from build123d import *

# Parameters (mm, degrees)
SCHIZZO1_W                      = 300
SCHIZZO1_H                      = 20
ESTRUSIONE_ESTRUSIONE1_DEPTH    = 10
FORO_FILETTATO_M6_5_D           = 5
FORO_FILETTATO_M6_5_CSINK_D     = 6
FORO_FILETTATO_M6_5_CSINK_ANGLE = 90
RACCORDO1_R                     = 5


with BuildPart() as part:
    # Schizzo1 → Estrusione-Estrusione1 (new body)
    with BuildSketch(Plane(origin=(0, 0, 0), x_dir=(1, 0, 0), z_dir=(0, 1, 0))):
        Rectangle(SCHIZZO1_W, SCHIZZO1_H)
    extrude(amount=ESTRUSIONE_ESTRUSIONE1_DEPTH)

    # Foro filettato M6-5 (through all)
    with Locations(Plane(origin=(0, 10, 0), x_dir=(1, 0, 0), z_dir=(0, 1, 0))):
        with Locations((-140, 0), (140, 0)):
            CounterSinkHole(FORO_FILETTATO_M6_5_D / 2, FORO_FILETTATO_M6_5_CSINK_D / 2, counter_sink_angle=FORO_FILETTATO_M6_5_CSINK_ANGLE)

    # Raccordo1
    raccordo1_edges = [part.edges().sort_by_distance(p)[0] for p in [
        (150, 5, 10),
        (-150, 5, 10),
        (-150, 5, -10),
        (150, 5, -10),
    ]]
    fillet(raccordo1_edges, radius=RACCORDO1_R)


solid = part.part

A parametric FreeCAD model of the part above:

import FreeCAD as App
import Part
import Sketcher

V = App.Vector
Q = App.Units.Quantity


def edges_at(feature, points):
    """Names of the edges that pass closest to the given points."""
    edges = feature.Shape.Edges
    near = lambda p: min(range(len(edges)), key=lambda i: edges[i].distToShape(Part.Vertex(*p))[0])
    return sorted({f"Edge{near(p) + 1}" for p in points})


def add_polygon(sketch, points):
    """Adds a closed chain of lines whose ends are joined by coincident constraints."""
    first, n = sketch.GeometryCount, len(points)
    for a, b in zip(points, points[1:] + points[:1]):
        sketch.addGeometry(Part.LineSegment(App.Vector(*a, 0), App.Vector(*b, 0)), False)
    for i in range(n):
        sketch.addConstraint(Sketcher.Constraint("Coincident", first + i, 2, first + (i + 1) % n, 1))

doc = App.newDocument("Part")
body = doc.addObject("PartDesign::Body", "Body")

sketch1 = doc.addObject("Sketcher::SketchObject", "Sketch")
body.addObject(sketch1)
sketch1.AttachmentSupport = (doc.XZ_Plane, [""])
sketch1.MapMode = "FlatFace"
add_polygon(sketch1, [(-150, -10), (-150, 10), (150, 10), (150, -10)])
sketch1.addConstraint(Sketcher.Constraint("Vertical", 0))
sketch1.addConstraint(Sketcher.Constraint("Horizontal", 1))
sketch1.addConstraint(Sketcher.Constraint("Vertical", 2))
sketch1.addConstraint(Sketcher.Constraint("Horizontal", 3))
sketch1.addConstraint(Sketcher.Constraint("Symmetric", 0, 2, 2, 2, -1, 1))
sketch1.addConstraint(Sketcher.Constraint("DistanceX", 1, 1, 1, 2, Q("300 mm")))
sketch1.addConstraint(Sketcher.Constraint("DistanceY", 0, 1, 0, 2, Q("20 mm")))
pad1 = doc.addObject("PartDesign::Pad", "Pad")
body.addObject(pad1)
pad1.Profile = sketch1
pad1.Length = 10
pad1.Reversed = True

sketch2 = doc.addObject("Sketcher::SketchObject", "Sketch001")
body.addObject(sketch2)
sketch2.AttachmentSupport = (doc.XZ_Plane, [""])
sketch2.MapMode = "FlatFace"
sketch2.AttachmentOffset = App.Placement(V(0, 0, -10), App.Rotation())
sketch2.addGeometry(Part.Circle(V(-140, 0, 0), V(0, 0, 1), 2.5), False)
sketch2.addGeometry(Part.Circle(V(140, 0, 0), V(0, 0, 1), 2.5), False)
sketch2.addConstraint(Sketcher.Constraint("Equal", 0, 1))
sketch2.addConstraint(Sketcher.Constraint("Symmetric", 0, 3, 1, 3, -1, 1))
sketch2.addConstraint(Sketcher.Constraint("PointOnObject", 0, 3, -1))
sketch2.addConstraint(Sketcher.Constraint("Diameter", 0, Q("5 mm")))
sketch2.addConstraint(Sketcher.Constraint("DistanceX", 0, 3, -1, 1, Q("140 mm")))
doc.recompute()
hole = doc.addObject("PartDesign::Hole", "Hole")
body.addObject(hole)
hole.Profile = sketch2
hole.ThreadType = "None"
hole.Diameter = 5
hole.DepthType = "ThroughAll"
hole.HoleCutType = "Countersink"
hole.HoleCutDiameter = 6
hole.HoleCutCountersinkAngle = 90
hole.Reversed = True
doc.recompute()

fillet = doc.addObject("PartDesign::Fillet", "Fillet")
body.addObject(fillet)
fillet.Base = (hole, edges_at(hole, [
    (150, 5, 10),
    (-150, 5, 10),
    (-150, 5, -10),
    (150, 5, -10),
]))
fillet.Radius = 5

doc.recompute()
